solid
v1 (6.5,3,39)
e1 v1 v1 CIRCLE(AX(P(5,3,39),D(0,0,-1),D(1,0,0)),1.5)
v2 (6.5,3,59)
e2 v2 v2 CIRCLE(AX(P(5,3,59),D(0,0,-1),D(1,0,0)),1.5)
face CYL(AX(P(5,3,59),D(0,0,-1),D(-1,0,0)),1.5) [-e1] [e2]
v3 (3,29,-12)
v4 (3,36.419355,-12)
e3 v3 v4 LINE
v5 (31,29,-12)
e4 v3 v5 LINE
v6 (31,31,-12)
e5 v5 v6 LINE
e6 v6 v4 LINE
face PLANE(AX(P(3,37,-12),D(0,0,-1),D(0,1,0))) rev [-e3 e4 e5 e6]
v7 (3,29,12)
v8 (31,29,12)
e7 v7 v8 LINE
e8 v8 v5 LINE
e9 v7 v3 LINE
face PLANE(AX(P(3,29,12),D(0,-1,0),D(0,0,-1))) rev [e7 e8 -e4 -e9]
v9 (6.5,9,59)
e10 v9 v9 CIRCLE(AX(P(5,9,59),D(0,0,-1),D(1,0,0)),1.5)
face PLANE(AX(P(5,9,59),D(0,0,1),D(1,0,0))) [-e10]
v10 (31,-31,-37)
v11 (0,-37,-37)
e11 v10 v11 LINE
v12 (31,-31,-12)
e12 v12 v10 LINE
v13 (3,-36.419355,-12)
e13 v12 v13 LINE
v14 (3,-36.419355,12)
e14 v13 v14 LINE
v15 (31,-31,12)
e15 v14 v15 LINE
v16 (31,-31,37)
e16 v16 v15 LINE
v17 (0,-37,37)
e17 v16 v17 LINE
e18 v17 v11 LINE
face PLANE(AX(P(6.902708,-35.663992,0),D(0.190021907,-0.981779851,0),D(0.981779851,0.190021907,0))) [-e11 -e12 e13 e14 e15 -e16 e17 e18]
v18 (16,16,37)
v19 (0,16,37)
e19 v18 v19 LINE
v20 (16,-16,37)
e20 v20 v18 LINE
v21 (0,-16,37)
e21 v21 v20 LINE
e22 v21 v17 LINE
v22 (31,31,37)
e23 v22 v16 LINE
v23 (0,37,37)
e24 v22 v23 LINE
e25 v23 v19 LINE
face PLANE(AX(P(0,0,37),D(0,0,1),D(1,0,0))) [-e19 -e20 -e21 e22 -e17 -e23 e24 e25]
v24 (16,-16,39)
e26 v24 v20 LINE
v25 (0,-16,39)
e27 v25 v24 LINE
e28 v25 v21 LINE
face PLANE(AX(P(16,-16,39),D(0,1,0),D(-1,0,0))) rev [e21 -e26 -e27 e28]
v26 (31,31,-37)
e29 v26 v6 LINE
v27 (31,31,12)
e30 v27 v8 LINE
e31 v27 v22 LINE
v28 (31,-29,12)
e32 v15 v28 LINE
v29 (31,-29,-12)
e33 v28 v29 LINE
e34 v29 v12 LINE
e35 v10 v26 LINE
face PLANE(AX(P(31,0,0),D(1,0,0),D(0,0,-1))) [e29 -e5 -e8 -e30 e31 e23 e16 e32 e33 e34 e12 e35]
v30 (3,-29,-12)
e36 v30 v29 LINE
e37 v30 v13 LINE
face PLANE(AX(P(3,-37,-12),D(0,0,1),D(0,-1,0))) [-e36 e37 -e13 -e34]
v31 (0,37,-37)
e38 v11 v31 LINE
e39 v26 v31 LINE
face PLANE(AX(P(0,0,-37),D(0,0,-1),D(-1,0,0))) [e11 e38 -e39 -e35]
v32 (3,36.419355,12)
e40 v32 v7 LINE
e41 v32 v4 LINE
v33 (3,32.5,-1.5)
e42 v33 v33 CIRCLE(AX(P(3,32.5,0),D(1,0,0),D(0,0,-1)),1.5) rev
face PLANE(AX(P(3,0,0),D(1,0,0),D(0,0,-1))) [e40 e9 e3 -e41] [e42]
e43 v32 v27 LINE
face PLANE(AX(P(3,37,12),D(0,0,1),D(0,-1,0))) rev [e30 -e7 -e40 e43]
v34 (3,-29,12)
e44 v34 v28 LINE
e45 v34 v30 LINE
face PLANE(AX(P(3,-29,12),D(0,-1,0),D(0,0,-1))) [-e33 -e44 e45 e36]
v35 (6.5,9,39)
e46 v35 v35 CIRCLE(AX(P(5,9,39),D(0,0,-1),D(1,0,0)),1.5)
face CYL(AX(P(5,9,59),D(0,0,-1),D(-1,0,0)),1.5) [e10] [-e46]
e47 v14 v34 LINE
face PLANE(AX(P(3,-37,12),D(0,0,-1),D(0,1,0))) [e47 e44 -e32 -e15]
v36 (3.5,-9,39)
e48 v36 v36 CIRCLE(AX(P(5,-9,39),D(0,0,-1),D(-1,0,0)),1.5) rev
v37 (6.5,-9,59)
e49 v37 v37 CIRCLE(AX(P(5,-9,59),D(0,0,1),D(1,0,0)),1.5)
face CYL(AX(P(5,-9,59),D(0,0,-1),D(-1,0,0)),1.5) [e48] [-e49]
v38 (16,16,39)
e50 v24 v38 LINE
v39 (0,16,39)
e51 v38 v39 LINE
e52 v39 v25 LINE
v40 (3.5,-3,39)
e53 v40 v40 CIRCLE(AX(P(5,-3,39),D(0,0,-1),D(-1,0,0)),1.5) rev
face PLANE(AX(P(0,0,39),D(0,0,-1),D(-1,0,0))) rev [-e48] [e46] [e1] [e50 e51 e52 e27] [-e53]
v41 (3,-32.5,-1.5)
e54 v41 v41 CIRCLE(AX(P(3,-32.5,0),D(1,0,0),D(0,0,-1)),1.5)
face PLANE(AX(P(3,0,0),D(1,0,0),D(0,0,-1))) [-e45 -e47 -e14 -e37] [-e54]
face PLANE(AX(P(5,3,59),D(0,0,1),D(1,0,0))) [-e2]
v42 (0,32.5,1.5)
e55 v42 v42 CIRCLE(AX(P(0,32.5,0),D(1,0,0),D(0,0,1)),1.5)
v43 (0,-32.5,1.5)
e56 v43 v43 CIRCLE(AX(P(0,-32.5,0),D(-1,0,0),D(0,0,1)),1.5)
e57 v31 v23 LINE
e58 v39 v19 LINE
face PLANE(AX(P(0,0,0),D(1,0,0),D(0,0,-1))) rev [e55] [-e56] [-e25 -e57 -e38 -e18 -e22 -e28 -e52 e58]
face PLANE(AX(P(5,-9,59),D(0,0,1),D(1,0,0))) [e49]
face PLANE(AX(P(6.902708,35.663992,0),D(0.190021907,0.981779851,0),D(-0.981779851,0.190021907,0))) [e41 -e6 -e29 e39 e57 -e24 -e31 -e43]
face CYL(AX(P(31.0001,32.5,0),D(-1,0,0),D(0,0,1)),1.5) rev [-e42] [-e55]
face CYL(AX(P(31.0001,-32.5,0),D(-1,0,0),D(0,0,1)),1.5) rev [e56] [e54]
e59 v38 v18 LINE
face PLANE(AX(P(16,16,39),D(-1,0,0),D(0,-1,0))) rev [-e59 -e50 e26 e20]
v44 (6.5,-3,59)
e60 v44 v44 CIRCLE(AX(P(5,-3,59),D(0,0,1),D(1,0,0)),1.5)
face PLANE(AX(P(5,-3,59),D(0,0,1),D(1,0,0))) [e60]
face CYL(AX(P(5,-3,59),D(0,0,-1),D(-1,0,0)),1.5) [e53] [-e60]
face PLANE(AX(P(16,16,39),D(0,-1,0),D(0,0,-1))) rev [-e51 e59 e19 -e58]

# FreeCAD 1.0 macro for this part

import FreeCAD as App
import Part
import Sketcher

doc = App.newDocument("Part")
body = doc.addObject("PartDesign::Body", "Body")

# Sketch on YZ plane
sketch1 = body.newObject("Sketcher::SketchObject", "Sketch")
sketch1.AttachmentSupport = (doc.getObject("YZ_Plane"), [""])
sketch1.MapMode = "FlatFace"
sketch1.AttachmentOffset = App.Placement(App.Vector(0, 0, 31), App.Rotation())
sketch1.addGeometry([
    Part.LineSegment(App.Vector(31, -37, 0), App.Vector(31, 37, 0)),
    Part.LineSegment(App.Vector(31, 37, 0), App.Vector(-31, 37, 0)),
    Part.LineSegment(App.Vector(-31, 37, 0), App.Vector(-31, -37, 0)),
    Part.LineSegment(App.Vector(-31, -37, 0), App.Vector(31, -37, 0)),
], False)
sketch1.addConstraint([
    Sketcher.Constraint("Coincident", 0, 2, 1, 1),
    Sketcher.Constraint("Coincident", 1, 2, 2, 1),
    Sketcher.Constraint("Coincident", 2, 2, 3, 1),
    Sketcher.Constraint("Coincident", 3, 2, 0, 1),
    Sketcher.Constraint("Vertical", 0),
    Sketcher.Constraint("Horizontal", 1),
    Sketcher.Constraint("Vertical", 2),
    Sketcher.Constraint("Horizontal", 3),
    Sketcher.Constraint("Symmetric", 0, 2, 2, 2, -1, 1),
    Sketcher.Constraint("DistanceX", 1, 2, 1, 1, 62.0),
    Sketcher.Constraint("DistanceY", 0, 1, 0, 2, 74.0),
])

# Sketch on YZ plane
sketch2 = body.newObject("Sketcher::SketchObject", "Sketch001")
sketch2.AttachmentSupport = (doc.getObject("YZ_Plane"), [""])
sketch2.MapMode = "FlatFace"
sketch2.addGeometry([
    Part.LineSegment(App.Vector(37, -37, 0), App.Vector(37, 37, 0)),
    Part.LineSegment(App.Vector(37, 37, 0), App.Vector(-37, 37, 0)),
    Part.LineSegment(App.Vector(-37, 37, 0), App.Vector(-37, -37, 0)),
    Part.LineSegment(App.Vector(-37, -37, 0), App.Vector(37, -37, 0)),
], False)
sketch2.addConstraint([
    Sketcher.Constraint("Coincident", 0, 2, 1, 1),
    Sketcher.Constraint("Coincident", 1, 2, 2, 1),
    Sketcher.Constraint("Coincident", 2, 2, 3, 1),
    Sketcher.Constraint("Coincident", 3, 2, 0, 1),
    Sketcher.Constraint("Vertical", 0),
    Sketcher.Constraint("Horizontal", 1),
    Sketcher.Constraint("Vertical", 2),
    Sketcher.Constraint("Horizontal", 3),
    Sketcher.Constraint("Symmetric", 0, 2, 2, 2, -1, 1),
    Sketcher.Constraint("Equal", 3, 0),
    Sketcher.Constraint("DistanceX", 1, 2, 1, 1, 74.0),
])

additiveloft = body.newObject("PartDesign::AdditiveLoft", "AdditiveLoft")
additiveloft.Profile = sketch1
additiveloft.Sections = [sketch2]

# Sketch on YZ plane
sketch3 = body.newObject("Sketcher::SketchObject", "Sketch002")
sketch3.AttachmentSupport = (doc.getObject("YZ_Plane"), [""])
sketch3.MapMode = "FlatFace"
sketch3.AttachmentOffset = App.Placement(App.Vector(0, 0, 31), App.Rotation())
sketch3.addGeometry([
    Part.LineSegment(App.Vector(37, 12, 0), App.Vector(29, 12, 0)),
    Part.LineSegment(App.Vector(29, 12, 0), App.Vector(29, -12, 0)),
    Part.LineSegment(App.Vector(29, -12, 0), App.Vector(37, -12, 0)),
    Part.LineSegment(App.Vector(37, -12, 0), App.Vector(37, 12, 0)),
], False)
sketch3.addConstraint([
    Sketcher.Constraint("Coincident", 0, 2, 1, 1),
    Sketcher.Constraint("Coincident", 1, 2, 2, 1),
    Sketcher.Constraint("Coincident", 2, 2, 3, 1),
    Sketcher.Constraint("Coincident", 3, 2, 0, 1),
    Sketcher.Constraint("Horizontal", 0),
    Sketcher.Constraint("Vertical", 1),
    Sketcher.Constraint("Horizontal", 2),
    Sketcher.Constraint("Vertical", 3),
    Sketcher.Constraint("DistanceX", 0, 2, 0, 1, 8.0),
    Sketcher.Constraint("DistanceY", 1, 2, 1, 1, 24.0),
    Sketcher.Constraint("DistanceX", -1, 1, 0, 2, 29.0),
    Sketcher.Constraint("DistanceY", -1, 1, 0, 2, 12.0),
])
pocket1 = body.newObject("PartDesign::Pocket", "Pocket")
pocket1.Profile = sketch3
pocket1.Length = 28
doc.recompute()

mirrored = body.newObject("PartDesign::Mirrored", "Mirrored")
mirrored.Originals = [pocket1]
mirrored.MirrorPlane = (doc.getObject("XZ_Plane"), [""])
body.Tip = mirrored

# Sketch on XY plane
sketch4 = body.newObject("Sketcher::SketchObject", "Sketch003")
sketch4.AttachmentSupport = (doc.getObject("XY_Plane"), [""])
sketch4.MapMode = "FlatFace"
sketch4.AttachmentOffset = App.Placement(App.Vector(0, 0, 37), App.Rotation())
sketch4.addGeometry([
    Part.LineSegment(App.Vector(0, 16, 0), App.Vector(0, -16, 0)),
    Part.LineSegment(App.Vector(0, -16, 0), App.Vector(16, -16, 0)),
    Part.LineSegment(App.Vector(16, -16, 0), App.Vector(16, 16, 0)),
    Part.LineSegment(App.Vector(16, 16, 0), App.Vector(0, 16, 0)),
], False)
sketch4.addConstraint([
    Sketcher.Constraint("Coincident", 0, 2, 1, 1),
    Sketcher.Constraint("Coincident", 1, 2, 2, 1),
    Sketcher.Constraint("Coincident", 2, 2, 3, 1),
    Sketcher.Constraint("Coincident", 3, 2, 0, 1),
    Sketcher.Constraint("Vertical", 0),
    Sketcher.Constraint("Horizontal", 1),
    Sketcher.Constraint("Vertical", 2),
    Sketcher.Constraint("Horizontal", 3),
    Sketcher.Constraint("Symmetric", 0, 2, 3, 2, -1, 1),
    Sketcher.Constraint("DistanceX", 1, 1, 1, 2, 16.0),
    Sketcher.Constraint("DistanceY", 0, 2, 0, 1, 32.0),
])
pad1 = body.newObject("PartDesign::Pad", "Pad")
pad1.Profile = sketch4
pad1.Length = 2

# Sketch on XY plane
sketch5 = body.newObject("Sketcher::SketchObject", "Sketch004")
sketch5.AttachmentSupport = (doc.getObject("XY_Plane"), [""])
sketch5.MapMode = "FlatFace"
sketch5.AttachmentOffset = App.Placement(App.Vector(0, 0, 39), App.Rotation())
sketch5.addGeometry([
    Part.Circle(App.Vector(5, -3, 0), App.Vector(0, 0, 1), 1.5),
    Part.Circle(App.Vector(5, -9, 0), App.Vector(0, 0, 1), 1.5),
], False)
sketch5.addConstraint([
    Sketcher.Constraint("Equal", 0, 1),
    Sketcher.Constraint("Vertical", 0, 3, 1, 3),
    Sketcher.Constraint("Diameter", 0, 3.0),
    Sketcher.Constraint("DistanceX", -1, 1, 0, 3, 5.0),
    Sketcher.Constraint("DistanceY", 0, 3, -1, 1, 3.0),
    Sketcher.Constraint("DistanceY", 1, 3, -1, 1, 9.0),
])
pad2 = body.newObject("PartDesign::Pad", "Pad001")
pad2.Profile = sketch5
pad2.Length = 20
doc.recompute()

mirrored2 = body.newObject("PartDesign::Mirrored", "Mirrored001")
mirrored2.Originals = [pad2]
mirrored2.MirrorPlane = (doc.getObject("XZ_Plane"), [""])
body.Tip = mirrored2

# Sketch on YZ plane
sketch6 = body.newObject("Sketcher::SketchObject", "Sketch005")
sketch6.AttachmentSupport = (doc.getObject("YZ_Plane"), [""])
sketch6.MapMode = "FlatFace"
sketch6.addGeometry(Part.Circle(App.Vector(-32.5, 0, 0), App.Vector(0, 0, 1), 1.5), False)
sketch6.addConstraint([
    Sketcher.Constraint("PointOnObject", 0, 3, -1),
    Sketcher.Constraint("Diameter", 0, 3.0),
    Sketcher.Constraint("DistanceX", 0, 3, -1, 1, 32.5),
])
pocket2 = body.newObject("PartDesign::Pocket", "Pocket001")
pocket2.Profile = sketch6
pocket2.Type = "ThroughAll"
pocket2.Reversed = True
doc.recompute()

mirrored3 = body.newObject("PartDesign::Mirrored", "Mirrored002")
mirrored3.Originals = [pocket2]
mirrored3.MirrorPlane = (doc.getObject("XZ_Plane"), [""])
body.Tip = mirrored3

doc.recompute()
